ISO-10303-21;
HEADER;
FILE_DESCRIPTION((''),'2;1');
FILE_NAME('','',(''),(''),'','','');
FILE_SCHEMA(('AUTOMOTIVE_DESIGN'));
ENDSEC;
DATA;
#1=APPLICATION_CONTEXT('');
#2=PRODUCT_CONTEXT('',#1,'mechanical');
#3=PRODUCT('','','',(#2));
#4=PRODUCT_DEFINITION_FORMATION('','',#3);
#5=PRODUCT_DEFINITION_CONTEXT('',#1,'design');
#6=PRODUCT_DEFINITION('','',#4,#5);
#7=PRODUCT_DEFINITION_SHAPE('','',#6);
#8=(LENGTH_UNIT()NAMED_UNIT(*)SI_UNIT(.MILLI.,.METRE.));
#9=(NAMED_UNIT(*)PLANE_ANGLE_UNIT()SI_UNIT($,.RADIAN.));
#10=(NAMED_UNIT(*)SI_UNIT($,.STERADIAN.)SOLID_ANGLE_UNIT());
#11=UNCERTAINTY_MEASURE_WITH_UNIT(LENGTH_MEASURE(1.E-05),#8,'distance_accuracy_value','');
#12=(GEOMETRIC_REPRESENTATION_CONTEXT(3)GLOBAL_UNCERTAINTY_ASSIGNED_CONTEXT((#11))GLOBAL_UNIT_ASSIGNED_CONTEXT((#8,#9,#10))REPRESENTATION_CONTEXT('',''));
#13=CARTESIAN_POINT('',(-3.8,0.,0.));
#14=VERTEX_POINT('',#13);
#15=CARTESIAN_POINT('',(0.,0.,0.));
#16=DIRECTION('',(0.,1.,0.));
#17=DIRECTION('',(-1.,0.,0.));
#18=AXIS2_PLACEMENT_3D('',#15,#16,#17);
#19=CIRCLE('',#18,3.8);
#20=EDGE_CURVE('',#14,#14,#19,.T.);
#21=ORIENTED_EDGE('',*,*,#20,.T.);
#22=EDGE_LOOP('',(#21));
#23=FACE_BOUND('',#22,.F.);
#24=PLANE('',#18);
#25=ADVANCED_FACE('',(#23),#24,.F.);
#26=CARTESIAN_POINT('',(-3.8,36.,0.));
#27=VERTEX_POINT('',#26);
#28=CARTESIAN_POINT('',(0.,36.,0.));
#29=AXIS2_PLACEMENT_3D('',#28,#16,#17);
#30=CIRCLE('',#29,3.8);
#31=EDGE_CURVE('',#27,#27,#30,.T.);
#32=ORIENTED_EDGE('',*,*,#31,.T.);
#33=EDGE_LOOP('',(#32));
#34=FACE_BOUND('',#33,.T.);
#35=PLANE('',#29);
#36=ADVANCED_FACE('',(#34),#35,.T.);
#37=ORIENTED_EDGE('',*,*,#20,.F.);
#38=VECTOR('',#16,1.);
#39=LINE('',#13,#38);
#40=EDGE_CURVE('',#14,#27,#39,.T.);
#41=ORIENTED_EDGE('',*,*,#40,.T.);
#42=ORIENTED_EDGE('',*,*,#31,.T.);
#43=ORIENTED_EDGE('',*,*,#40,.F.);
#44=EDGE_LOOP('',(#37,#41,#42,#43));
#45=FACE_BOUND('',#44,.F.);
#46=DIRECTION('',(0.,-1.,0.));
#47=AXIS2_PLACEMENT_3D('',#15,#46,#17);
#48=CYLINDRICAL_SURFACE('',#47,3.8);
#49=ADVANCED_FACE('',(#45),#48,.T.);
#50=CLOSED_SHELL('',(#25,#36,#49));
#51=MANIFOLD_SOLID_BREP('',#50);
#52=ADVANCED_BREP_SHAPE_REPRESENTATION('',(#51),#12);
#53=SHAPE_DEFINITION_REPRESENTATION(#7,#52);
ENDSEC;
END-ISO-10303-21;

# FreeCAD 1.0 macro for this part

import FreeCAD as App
import Part
import Sketcher

doc = App.newDocument("Part")
body = doc.addObject("PartDesign::Body", "Body")

# Sketch on XZ plane
sketch1 = body.newObject("Sketcher::SketchObject", "Sketch")
sketch1.AttachmentSupport = (doc.getObject("XZ_Plane"), [""])
sketch1.MapMode = "FlatFace"
sketch1.addGeometry(Part.Circle(App.Vector(0, 0, 0), App.Vector(0, 0, 1), 3.8), False)
sketch1.addConstraint([
    Sketcher.Constraint("Coincident", 0, 3, -1, 1),
    Sketcher.Constraint("Diameter", 0, 7.6),
])
pad1 = body.newObject("PartDesign::Pad", "Pad")
pad1.Profile = sketch1
pad1.Length = 36
pad1.Reversed = True

doc.recompute()
